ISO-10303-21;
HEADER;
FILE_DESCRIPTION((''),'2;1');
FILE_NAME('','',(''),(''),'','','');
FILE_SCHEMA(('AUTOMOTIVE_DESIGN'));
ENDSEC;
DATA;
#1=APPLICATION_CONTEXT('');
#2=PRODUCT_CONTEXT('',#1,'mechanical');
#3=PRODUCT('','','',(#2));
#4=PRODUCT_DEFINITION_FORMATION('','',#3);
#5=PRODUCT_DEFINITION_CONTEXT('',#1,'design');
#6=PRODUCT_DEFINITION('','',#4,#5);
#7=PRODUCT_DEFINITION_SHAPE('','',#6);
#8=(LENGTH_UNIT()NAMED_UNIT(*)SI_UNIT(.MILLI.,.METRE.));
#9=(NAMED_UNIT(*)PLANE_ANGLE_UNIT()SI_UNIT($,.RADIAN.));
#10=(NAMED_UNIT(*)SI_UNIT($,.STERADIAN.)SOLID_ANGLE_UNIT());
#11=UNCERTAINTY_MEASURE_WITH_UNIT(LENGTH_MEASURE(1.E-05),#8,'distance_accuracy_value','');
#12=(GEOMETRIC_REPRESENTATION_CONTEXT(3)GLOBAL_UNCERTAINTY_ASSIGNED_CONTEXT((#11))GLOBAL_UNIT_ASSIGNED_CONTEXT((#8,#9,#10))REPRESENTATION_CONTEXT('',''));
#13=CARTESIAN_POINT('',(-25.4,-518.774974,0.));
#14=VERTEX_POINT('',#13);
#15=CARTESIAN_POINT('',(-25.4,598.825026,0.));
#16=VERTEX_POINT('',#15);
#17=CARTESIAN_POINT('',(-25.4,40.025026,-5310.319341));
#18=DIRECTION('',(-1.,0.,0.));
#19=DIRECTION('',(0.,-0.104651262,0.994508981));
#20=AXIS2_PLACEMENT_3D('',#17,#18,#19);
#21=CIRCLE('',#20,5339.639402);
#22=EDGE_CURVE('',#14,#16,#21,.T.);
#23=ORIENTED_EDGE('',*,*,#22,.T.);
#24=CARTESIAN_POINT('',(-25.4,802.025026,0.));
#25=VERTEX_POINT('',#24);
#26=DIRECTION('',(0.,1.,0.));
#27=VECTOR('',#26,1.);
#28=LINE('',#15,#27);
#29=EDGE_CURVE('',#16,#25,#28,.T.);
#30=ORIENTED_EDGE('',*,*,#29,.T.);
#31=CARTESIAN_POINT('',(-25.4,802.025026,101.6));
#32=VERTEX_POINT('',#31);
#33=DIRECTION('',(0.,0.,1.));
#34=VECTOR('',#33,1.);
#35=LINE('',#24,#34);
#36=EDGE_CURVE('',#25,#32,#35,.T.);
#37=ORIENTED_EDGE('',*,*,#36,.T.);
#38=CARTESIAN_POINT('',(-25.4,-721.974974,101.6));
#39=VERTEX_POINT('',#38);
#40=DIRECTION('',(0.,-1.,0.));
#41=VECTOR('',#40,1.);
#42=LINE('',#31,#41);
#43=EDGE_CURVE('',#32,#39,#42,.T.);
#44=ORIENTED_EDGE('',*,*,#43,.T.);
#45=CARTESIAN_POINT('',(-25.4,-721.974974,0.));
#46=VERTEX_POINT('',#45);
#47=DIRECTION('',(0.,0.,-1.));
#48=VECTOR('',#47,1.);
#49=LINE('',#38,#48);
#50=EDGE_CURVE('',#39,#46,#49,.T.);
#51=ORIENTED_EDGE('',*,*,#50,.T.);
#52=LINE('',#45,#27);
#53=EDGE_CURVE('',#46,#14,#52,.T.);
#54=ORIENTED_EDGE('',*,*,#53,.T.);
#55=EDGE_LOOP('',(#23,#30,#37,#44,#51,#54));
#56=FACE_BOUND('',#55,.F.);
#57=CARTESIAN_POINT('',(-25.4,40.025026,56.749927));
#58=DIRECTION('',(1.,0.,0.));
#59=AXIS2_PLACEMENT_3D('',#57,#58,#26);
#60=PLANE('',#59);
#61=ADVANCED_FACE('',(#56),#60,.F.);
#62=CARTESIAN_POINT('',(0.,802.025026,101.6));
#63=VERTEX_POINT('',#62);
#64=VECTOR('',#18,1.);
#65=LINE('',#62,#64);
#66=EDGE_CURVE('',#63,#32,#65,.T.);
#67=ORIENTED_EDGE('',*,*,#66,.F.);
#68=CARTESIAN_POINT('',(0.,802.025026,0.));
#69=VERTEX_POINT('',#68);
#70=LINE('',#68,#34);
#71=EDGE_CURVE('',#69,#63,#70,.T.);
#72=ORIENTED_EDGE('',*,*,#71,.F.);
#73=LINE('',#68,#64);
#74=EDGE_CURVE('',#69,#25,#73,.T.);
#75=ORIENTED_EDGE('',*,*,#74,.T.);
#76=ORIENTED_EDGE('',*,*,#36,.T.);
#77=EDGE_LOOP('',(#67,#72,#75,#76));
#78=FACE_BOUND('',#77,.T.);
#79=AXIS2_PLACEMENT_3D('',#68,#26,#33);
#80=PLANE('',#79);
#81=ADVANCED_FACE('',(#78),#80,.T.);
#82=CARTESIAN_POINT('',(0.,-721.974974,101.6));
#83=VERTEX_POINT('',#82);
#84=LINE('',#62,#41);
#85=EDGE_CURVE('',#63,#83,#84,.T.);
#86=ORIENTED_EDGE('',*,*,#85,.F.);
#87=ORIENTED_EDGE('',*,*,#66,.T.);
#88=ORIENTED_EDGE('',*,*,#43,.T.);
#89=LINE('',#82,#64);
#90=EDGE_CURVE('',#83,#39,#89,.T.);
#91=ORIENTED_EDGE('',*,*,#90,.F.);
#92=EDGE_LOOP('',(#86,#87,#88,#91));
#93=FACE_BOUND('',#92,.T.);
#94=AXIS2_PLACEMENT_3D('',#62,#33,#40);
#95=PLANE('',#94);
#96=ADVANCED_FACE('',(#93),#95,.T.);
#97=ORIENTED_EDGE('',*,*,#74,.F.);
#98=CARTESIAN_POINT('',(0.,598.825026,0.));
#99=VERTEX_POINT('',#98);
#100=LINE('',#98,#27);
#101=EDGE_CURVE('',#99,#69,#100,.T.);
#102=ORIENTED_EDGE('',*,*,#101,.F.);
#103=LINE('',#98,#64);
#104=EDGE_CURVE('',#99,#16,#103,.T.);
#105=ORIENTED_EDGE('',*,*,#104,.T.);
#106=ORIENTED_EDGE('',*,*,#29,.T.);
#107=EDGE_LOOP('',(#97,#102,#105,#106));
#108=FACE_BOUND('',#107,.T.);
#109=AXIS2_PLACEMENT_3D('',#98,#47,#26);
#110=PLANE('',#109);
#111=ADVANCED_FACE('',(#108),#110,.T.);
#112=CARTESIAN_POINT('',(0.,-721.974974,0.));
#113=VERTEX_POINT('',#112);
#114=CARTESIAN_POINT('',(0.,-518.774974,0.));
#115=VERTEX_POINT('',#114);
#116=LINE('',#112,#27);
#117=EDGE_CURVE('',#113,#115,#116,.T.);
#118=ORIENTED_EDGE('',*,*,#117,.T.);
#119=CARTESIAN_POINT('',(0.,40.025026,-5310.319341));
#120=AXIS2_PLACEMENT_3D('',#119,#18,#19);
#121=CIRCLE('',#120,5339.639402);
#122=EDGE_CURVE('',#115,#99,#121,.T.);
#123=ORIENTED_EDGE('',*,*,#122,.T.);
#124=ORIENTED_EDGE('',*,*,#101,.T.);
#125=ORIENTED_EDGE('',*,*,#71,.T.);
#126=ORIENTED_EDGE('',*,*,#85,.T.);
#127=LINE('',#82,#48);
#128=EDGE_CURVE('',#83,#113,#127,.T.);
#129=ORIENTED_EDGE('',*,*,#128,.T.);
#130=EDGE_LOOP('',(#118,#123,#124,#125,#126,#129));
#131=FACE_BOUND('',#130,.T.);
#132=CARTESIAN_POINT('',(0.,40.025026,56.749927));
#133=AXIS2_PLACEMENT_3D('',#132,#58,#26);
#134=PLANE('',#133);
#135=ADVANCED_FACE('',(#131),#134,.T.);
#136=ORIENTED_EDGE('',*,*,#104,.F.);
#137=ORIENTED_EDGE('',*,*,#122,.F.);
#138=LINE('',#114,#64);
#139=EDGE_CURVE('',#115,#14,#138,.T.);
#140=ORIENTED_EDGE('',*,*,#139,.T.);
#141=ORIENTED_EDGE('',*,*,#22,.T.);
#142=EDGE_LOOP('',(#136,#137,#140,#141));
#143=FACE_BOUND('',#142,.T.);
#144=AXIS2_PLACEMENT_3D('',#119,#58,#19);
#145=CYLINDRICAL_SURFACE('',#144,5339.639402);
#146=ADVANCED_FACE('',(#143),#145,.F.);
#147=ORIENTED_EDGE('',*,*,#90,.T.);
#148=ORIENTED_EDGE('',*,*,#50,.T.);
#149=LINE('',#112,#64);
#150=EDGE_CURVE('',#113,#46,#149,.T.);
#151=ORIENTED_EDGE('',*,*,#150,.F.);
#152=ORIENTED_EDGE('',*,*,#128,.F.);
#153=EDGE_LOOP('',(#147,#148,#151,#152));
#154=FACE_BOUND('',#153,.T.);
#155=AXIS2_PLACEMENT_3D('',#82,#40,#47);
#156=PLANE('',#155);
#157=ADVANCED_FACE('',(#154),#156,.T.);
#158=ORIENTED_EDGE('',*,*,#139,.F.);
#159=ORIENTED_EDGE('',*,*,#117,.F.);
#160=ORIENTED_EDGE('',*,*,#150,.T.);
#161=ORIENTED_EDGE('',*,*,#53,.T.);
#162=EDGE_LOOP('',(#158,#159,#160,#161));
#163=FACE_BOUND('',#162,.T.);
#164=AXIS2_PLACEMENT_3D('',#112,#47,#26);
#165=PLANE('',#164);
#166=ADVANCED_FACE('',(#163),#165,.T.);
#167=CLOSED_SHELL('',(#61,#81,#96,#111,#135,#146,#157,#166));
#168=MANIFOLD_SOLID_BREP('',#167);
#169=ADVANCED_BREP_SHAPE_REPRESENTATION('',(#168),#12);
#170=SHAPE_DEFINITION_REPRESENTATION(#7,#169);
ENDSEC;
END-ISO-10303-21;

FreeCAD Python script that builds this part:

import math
import FreeCAD as App
import Part
import Sketcher
Q = App.Units.Quantity

doc = App.newDocument("Part")
params = doc.addObject("Spreadsheet::Sheet", "Params")
for row, (alias, value) in enumerate([
    ("sketch1_width", "60 in"),
    ("sketch1_width2", "8 in"),
    ("sketch1_height", "4 in"),
    ("pad1_length", "1 in"),
], start=1):
    params.set(f"A{row}", alias)
    params.set(f"B{row}", "=" + value)
    params.setAlias(f"B{row}", alias)

body = doc.addObject("PartDesign::Body", "Body")

# Sketch on YZ plane
sketch1 = body.newObject("Sketcher::SketchObject", "Sketch")
sketch1.AttachmentSupport = (doc.getObject("YZ_Plane"), [""])
sketch1.MapMode = "FlatFace"
sketch1.addGeometry([
    Part.LineSegment(App.Vector(802.025026, 101.6, 0), App.Vector(-721.974974, 101.6, 0)),  # 0
    Part.LineSegment(App.Vector(-721.974974, 101.6, 0), App.Vector(-721.974974, 0, 0)),  # 1
    Part.LineSegment(App.Vector(-721.974974, 0, 0), App.Vector(-518.774974, 0, 0)),  # 2
    Part.ArcOfCircle(Part.Circle(App.Vector(40.025026, -5310.319341, 0), App.Vector(0, 0, 1), 5339.639402), math.radians(83.992925), math.radians(96.007075)),  # 3
    Part.LineSegment(App.Vector(598.825026, 0, 0), App.Vector(802.025026, 0, 0)),  # 4
    Part.LineSegment(App.Vector(802.025026, 0, 0), App.Vector(802.025026, 101.6, 0)),  # 5
], False)
sketch1.addConstraint([
    Sketcher.Constraint("Coincident", 0, 2, 1, 1),
    Sketcher.Constraint("Coincident", 1, 2, 2, 1),
    Sketcher.Constraint("Coincident", 2, 2, 3, 2),
    Sketcher.Constraint("Coincident", 3, 1, 4, 1),
    Sketcher.Constraint("Coincident", 4, 2, 5, 1),
    Sketcher.Constraint("Coincident", 5, 2, 0, 1),
    Sketcher.Constraint("Horizontal", 0),
    Sketcher.Constraint("Vertical", 1),
    Sketcher.Constraint("Horizontal", 2),
    Sketcher.Constraint("Horizontal", 4),
    Sketcher.Constraint("Vertical", 5),
    Sketcher.Constraint("PointOnObject", 1, 2, -1),
    Sketcher.Constraint("PointOnObject", 4, 2, -1),
    Sketcher.Constraint("Equal", 2, 4),
    Sketcher.Constraint("DistanceX", 0, 2, 0, 1, Q("60 in")),
    Sketcher.Constraint("DistanceX", 2, 1, 2, 2, Q("8 in")),
    Sketcher.Constraint("DistanceY", 1, 2, 1, 1, Q("4 in")),
    Sketcher.Constraint("Radius", 3, Q("5339.639402 mm")),
    Sketcher.Constraint("DistanceX", -1, 1, 3, 3, Q("40.025026 mm")),
])
sketch1.setExpression("Constraints[14]", "Params.sketch1_width")
sketch1.setExpression("Constraints[15]", "Params.sketch1_width2")
sketch1.setExpression("Constraints[16]", "Params.sketch1_height")
pad1 = body.newObject("PartDesign::Pad", "Pad")
pad1.Profile = sketch1
pad1.setExpression("Length", "Params.pad1_length")
pad1.Reversed = True

doc.recompute()
